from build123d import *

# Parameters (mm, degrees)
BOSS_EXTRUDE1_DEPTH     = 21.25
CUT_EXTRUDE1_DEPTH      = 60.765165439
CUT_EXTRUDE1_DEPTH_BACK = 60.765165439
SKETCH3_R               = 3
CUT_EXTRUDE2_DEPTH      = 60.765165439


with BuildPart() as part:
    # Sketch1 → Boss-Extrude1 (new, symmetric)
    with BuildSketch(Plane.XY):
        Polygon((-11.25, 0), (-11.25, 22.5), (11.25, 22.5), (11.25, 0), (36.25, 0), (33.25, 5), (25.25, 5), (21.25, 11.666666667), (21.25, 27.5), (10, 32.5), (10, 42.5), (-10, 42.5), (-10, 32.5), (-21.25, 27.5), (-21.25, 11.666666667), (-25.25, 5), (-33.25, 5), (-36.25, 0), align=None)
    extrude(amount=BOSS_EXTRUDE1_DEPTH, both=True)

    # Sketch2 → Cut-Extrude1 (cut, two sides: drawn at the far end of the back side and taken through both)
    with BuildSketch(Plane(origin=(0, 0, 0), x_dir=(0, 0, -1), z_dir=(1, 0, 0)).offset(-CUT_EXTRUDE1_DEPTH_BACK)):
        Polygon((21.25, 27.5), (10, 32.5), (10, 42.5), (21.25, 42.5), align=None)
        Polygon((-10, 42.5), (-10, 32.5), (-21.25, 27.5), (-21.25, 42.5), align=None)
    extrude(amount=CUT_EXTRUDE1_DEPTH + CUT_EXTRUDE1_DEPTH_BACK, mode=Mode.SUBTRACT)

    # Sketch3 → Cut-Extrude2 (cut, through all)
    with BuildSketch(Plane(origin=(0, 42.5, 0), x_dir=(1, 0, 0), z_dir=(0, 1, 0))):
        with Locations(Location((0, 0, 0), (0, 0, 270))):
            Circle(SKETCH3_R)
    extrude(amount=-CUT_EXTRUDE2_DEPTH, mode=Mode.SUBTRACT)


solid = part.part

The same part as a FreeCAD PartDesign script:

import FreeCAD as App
import Part
import Sketcher
from FreeCAD import Vector


def add_polygon(sketch, points):
    """Adds a closed chain of lines whose ends are joined by coincident constraints."""
    first, n = sketch.GeometryCount, len(points)
    for a, b in zip(points, points[1:] + points[:1]):
        sketch.addGeometry(Part.LineSegment(App.Vector(*a, 0), App.Vector(*b, 0)), False)
    for i in range(n):
        sketch.addConstraint(Sketcher.Constraint("Coincident", first + i, 2, first + (i + 1) % n, 1))

doc = App.newDocument("Part")
params = doc.addObject("Spreadsheet::Sheet", "Params")
for row, (alias, value) in enumerate([
    ("sketch1_width", "25 mm"),
    ("sketch1_width2", "8 mm"),
    ("sketch1_width3", "20 mm"),
    ("sketch1_height", "10 mm"),
    ("sketch1_width4", "22.5 mm"),
    ("pad1_length", "42.5 mm"),
    ("sketch2_width", "15 mm"),
    ("sketch2_width2", "10 mm"),
    ("sketch2_height", "11.25 mm"),
    ("sketch3_diameter", "6 mm"),
], start=1):
    params.set(f"A{row}", alias)
    params.set(f"B{row}", "=" + value)
    params.setAlias(f"B{row}", alias)

body = doc.addObject("PartDesign::Body", "Body")

sketch1 = doc.addObject("Sketcher::SketchObject", "Sketch")
body.addObject(sketch1)
sketch1.AttachmentSupport = (doc.XY_Plane, [""])
sketch1.MapMode = "FlatFace"
add_polygon(sketch1, [(-11, 0), (-11, 22), (11, 22), (11, 0), (36, 0), (33, 5), (25, 5), (21, 12), (21, 28), (10, 32), (10, 42), (-10, 42), (-10, 32), (-21, 28), (-21, 12), (-25, 5), (-33, 5), (-36, 0)])
sketch1.addConstraint([
    Sketcher.Constraint("Vertical", 0),
    Sketcher.Constraint("Horizontal", 1),
    Sketcher.Constraint("Vertical", 2),
    Sketcher.Constraint("Horizontal", 3),
    Sketcher.Constraint("Horizontal", 5),
    Sketcher.Constraint("Vertical", 7),
    Sketcher.Constraint("Vertical", 9),
    Sketcher.Constraint("Horizontal", 10),
    Sketcher.Constraint("Vertical", 11),
    Sketcher.Constraint("Vertical", 13),
    Sketcher.Constraint("Horizontal", 15),
    Sketcher.Constraint("Horizontal", 17),
    Sketcher.Constraint("Symmetric", 3, 2, 16, 2, -1, 1),
    Sketcher.Constraint("Symmetric", 8, 2, 11, 2, -2),
    Sketcher.Constraint("Symmetric", 7, 2, 12, 2, -2),
    Sketcher.Constraint("Symmetric", 5, 2, 14, 2, -2),
    Sketcher.Constraint("Symmetric", 2, 2, 17, 2, -2),
    Sketcher.Constraint("Parallel", 4, 6),
    Sketcher.Constraint("Parallel", 14, 16),
    Sketcher.Constraint("Horizontal", 6, 2, 13, 2),
    Sketcher.Constraint("Equal", 1, 0),
    Sketcher.Constraint("DistanceX", 3, 1, 3, 2, 25.0),
    Sketcher.Constraint("DistanceX", 5, 2, 5, 1, 8.0),
    Sketcher.Constraint("DistanceX", 10, 2, 10, 1, 20.0),
    Sketcher.Constraint("DistanceY", 9, 1, 9, 2, 10.0),
    Sketcher.Constraint("DistanceX", 1, 1, 1, 2, 22.5),
    Sketcher.Constraint("DistanceY", -1, 1, 4, 2, 5.0),
    Sketcher.Constraint("DistanceX", 4, 2, 3, 2, 3.0),
    Sketcher.Constraint("DistanceX", 6, 2, 5, 2, 4.0),
    Sketcher.Constraint("DistanceY", 1, 2, 7, 2, 5.0),
    Sketcher.Constraint("DistanceY", 1, 2, 8, 2, 10.0),
])
sketch1.setExpression("Constraints[39]", "Params.sketch1_width")
sketch1.setExpression("Constraints[40]", "Params.sketch1_width2")
sketch1.setExpression("Constraints[41]", "Params.sketch1_width3")
sketch1.setExpression("Constraints[42]", "Params.sketch1_height")
sketch1.setExpression("Constraints[43]", "Params.sketch1_width4")
pad1 = doc.addObject("PartDesign::Pad", "Pad")
body.addObject(pad1)
pad1.Profile = sketch1
pad1.setExpression("Length", "Params.pad1_length")
pad1.Midplane = True

sketch2 = doc.addObject("Sketcher::SketchObject", "Sketch001")
body.addObject(sketch2)
sketch2.AttachmentSupport = (doc.YZ_Plane, [""])
sketch2.MapMode = "FlatFace"
add_polygon(sketch2, [(32, -10), (28, -21), (42, -21), (42, -10)])
add_polygon(sketch2, [(32, 10), (42, 10), (42, 21), (28, 21)])
sketch2.addConstraint([
    Sketcher.Constraint("Horizontal", 1),
    Sketcher.Constraint("Vertical", 2),
    Sketcher.Constraint("Horizontal", 3),
    Sketcher.Constraint("Horizontal", 4),
    Sketcher.Constraint("Vertical", 5),
    Sketcher.Constraint("Horizontal", 6),
    Sketcher.Constraint("Symmetric", 2, 2, 4, 2, -1),
    Sketcher.Constraint("Symmetric", 0, 2, 6, 2, -1),
    Sketcher.Constraint("Vertical", 3, 2, 7, 2),
    Sketcher.Constraint("DistanceX", 1, 1, 1, 2, 15.0),
    Sketcher.Constraint("DistanceX", 3, 2, 3, 1, 10.0),
    Sketcher.Constraint("DistanceY", 2, 2, -1, 1, 10.0),
    Sketcher.Constraint("DistanceY", 2, 1, 2, 2, 11.25),
    Sketcher.Constraint("DistanceX", -1, 1, 0, 2, 27.5),
])
sketch2.setExpression("Constraints[17]", "Params.sketch2_width")
sketch2.setExpression("Constraints[18]", "Params.sketch2_width2")
sketch2.setExpression("Constraints[20]", "Params.sketch2_height")
pocket1 = doc.addObject("PartDesign::Pocket", "Pocket")
body.addObject(pocket1)
pocket1.Profile = sketch2
pocket1.Type = "ThroughAll"
pocket1.Midplane = True

sketch3 = doc.addObject("Sketcher::SketchObject", "Sketch002")
body.addObject(sketch3)
sketch3.AttachmentSupport = (doc.XZ_Plane, [""])
sketch3.MapMode = "FlatFace"
sketch3.AttachmentOffset = App.Placement(Vector(0, 0, -42.5), App.Rotation())
sketch3.addGeometry(Part.Circle(Vector(0, 0, 0), Vector(0, 0, 1), 3), False)
sketch3.addConstraint([
    Sketcher.Constraint("Coincident", 0, 3, -1, 1),
    Sketcher.Constraint("Diameter", 0, 6.0),
])
sketch3.setExpression("Constraints[1]", "Params.sketch3_diameter")
pocket2 = doc.addObject("PartDesign::Pocket", "Pocket001")
body.addObject(pocket2)
pocket2.Profile = sketch3
pocket2.Type = "ThroughAll"
pocket2.Reversed = True

doc.recompute()
